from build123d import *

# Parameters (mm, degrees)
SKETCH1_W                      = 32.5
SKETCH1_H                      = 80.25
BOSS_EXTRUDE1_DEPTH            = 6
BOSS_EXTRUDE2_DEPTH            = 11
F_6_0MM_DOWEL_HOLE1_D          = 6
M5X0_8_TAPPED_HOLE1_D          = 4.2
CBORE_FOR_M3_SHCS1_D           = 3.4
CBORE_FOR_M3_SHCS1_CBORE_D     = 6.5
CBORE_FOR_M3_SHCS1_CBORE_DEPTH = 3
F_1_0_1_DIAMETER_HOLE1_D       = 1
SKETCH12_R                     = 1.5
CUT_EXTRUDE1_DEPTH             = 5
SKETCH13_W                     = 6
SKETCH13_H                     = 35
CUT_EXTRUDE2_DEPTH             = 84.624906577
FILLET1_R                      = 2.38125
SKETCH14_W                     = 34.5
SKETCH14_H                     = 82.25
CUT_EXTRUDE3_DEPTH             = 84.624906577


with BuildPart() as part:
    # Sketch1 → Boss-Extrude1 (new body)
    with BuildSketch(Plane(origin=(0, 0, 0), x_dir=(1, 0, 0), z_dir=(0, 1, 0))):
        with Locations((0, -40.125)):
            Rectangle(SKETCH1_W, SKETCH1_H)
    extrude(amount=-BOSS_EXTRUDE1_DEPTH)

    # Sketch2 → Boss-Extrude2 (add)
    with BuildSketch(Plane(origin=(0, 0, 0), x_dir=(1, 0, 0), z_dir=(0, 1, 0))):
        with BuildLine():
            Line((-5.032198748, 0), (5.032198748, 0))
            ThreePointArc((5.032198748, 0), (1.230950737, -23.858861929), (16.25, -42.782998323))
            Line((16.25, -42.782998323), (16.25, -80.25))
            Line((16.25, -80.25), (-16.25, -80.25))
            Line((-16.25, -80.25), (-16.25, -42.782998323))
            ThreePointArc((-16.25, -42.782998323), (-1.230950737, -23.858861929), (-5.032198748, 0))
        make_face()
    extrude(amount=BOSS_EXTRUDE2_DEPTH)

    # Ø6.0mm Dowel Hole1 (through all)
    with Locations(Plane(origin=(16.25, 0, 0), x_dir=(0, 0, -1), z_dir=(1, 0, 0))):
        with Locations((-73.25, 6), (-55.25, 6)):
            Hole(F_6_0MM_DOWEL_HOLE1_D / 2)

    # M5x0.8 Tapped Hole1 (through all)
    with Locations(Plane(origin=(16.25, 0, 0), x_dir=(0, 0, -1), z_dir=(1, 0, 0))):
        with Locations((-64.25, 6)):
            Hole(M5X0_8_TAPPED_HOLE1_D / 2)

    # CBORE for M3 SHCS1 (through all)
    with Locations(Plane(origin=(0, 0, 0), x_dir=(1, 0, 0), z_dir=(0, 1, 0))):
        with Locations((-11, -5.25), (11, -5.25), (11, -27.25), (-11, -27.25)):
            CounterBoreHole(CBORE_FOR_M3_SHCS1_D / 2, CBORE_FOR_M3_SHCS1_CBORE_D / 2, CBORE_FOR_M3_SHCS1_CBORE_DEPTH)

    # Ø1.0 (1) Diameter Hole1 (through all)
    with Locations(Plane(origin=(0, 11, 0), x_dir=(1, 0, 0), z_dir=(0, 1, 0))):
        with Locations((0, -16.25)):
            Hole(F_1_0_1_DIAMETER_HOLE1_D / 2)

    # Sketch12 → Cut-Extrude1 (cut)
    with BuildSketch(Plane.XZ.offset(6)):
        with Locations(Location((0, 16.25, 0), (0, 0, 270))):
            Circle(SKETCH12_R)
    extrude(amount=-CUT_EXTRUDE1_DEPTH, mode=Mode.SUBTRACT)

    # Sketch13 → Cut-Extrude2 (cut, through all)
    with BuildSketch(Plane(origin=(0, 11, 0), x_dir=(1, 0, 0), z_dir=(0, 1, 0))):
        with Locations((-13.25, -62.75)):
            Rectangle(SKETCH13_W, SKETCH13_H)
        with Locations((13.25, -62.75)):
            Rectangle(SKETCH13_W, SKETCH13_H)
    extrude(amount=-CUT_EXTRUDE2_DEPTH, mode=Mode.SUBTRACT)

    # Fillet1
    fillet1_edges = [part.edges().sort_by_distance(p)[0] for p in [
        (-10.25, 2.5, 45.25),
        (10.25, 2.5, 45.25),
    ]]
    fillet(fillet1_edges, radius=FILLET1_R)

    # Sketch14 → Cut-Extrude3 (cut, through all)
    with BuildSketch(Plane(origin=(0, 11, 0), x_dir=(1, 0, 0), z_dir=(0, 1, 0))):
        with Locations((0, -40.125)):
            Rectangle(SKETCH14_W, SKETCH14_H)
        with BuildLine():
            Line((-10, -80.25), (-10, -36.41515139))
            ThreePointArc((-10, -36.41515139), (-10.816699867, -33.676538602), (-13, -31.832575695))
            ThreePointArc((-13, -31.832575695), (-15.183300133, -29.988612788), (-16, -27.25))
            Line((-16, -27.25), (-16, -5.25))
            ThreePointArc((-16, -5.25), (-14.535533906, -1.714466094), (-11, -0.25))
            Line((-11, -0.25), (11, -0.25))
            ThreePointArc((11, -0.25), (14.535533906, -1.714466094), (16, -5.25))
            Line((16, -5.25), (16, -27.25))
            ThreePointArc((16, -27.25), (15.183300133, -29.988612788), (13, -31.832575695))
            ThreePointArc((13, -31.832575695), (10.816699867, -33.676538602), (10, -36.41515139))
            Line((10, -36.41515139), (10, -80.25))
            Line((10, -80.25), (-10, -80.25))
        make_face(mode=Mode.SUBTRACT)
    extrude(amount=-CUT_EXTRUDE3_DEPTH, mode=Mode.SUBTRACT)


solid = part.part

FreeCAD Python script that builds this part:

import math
import FreeCAD as App
import Part
import Sketcher
from FreeCAD import Vector


def edges_at(feature, points):
    """Names of the edges that pass closest to the given points."""
    edges = feature.Shape.Edges
    near = lambda p: min(range(len(edges)), key=lambda i: edges[i].distToShape(Part.Vertex(*p))[0])
    return sorted({f"Edge{near(p) + 1}" for p in points})

doc = App.newDocument("Part")
body = doc.addObject("PartDesign::Body", "Body")

# Sketch on XZ plane
sketch1 = body.newObject("Sketcher::SketchObject", "Sketch")
sketch1.AttachmentSupport = (doc.getObject("XZ_Plane"), [""])
sketch1.MapMode = "FlatFace"
sketch1.addGeometry([
    Part.LineSegment(Vector(-16, 0, 0), Vector(-16, 80, 0)),
    Part.LineSegment(Vector(-16, 80, 0), Vector(16, 80, 0)),
    Part.LineSegment(Vector(16, 80, 0), Vector(16, 0, 0)),
    Part.LineSegment(Vector(16, 0, 0), Vector(-16, 0, 0)),
], False)
sketch1.addConstraint([
    Sketcher.Constraint("Coincident", 0, 2, 1, 1),
    Sketcher.Constraint("Coincident", 1, 2, 2, 1),
    Sketcher.Constraint("Coincident", 2, 2, 3, 1),
    Sketcher.Constraint("Coincident", 3, 2, 0, 1),
    Sketcher.Constraint("Vertical", 0),
    Sketcher.Constraint("Horizontal", 1),
    Sketcher.Constraint("Vertical", 2),
    Sketcher.Constraint("Horizontal", 3),
    Sketcher.Constraint("Symmetric", 2, 2, 3, 2, -1, 1),
    Sketcher.Constraint("DistanceX", 1, 1, 1, 2, 32.5),
    Sketcher.Constraint("DistanceY", 0, 1, 0, 2, 80.25),
])
pad1 = body.newObject("PartDesign::Pad", "Pad")
pad1.Profile = sketch1
pad1.Length = 6

# Sketch on XZ plane
sketch2 = body.newObject("Sketcher::SketchObject", "Sketch001")
sketch2.AttachmentSupport = (doc.getObject("XZ_Plane"), [""])
sketch2.MapMode = "FlatFace"
sketch2.addGeometry([
    Part.LineSegment(Vector(5, 0, 0), Vector(-5, 0, 0)),  # 0
    Part.ArcOfCircle(Part.Circle(Vector(-30, 16, 0), Vector(0, 0, 1), 30), math.radians(-33), math.radians(62)),  # 1
    Part.LineSegment(Vector(-16, 43, 0), Vector(-16, 80, 0)),  # 2
    Part.LineSegment(Vector(-16, 80, 0), Vector(16, 80, 0)),  # 3
    Part.LineSegment(Vector(16, 80, 0), Vector(16, 43, 0)),  # 4
    Part.ArcOfCircle(Part.Circle(Vector(30, 16, 0), Vector(0, 0, 1), 30), math.radians(118), math.radians(213)),  # 5
], False)
sketch2.addConstraint([
    Sketcher.Constraint("Coincident", 0, 2, 1, 1),
    Sketcher.Constraint("Coincident", 1, 2, 2, 1),
    Sketcher.Constraint("Coincident", 2, 2, 3, 1),
    Sketcher.Constraint("Coincident", 3, 2, 4, 1),
    Sketcher.Constraint("Coincident", 4, 2, 5, 1),
    Sketcher.Constraint("Coincident", 5, 2, 0, 1),
    Sketcher.Constraint("Horizontal", 0),
    Sketcher.Constraint("Vertical", 2),
    Sketcher.Constraint("Horizontal", 3),
    Sketcher.Constraint("Vertical", 4),
    Sketcher.Constraint("Equal", 1, 5),
    Sketcher.Constraint("Symmetric", 0, 2, 5, 2, -1, 1),
    Sketcher.Constraint("Symmetric", 1, 2, 4, 2, -2),
    Sketcher.Constraint("Radius", 1, 30.0),
    Sketcher.Constraint("DistanceX", 3, 1, 3, 2, 32.5),
    Sketcher.Constraint("DistanceX", 1, 3, 1, 2, 14.0),
    Sketcher.Constraint("DistanceY", 1, 3, 2, 2, 64.0),
    Sketcher.Constraint("DistanceY", -1, 1, 1, 3, 16.25),
])
pad2 = body.newObject("PartDesign::Pad", "Pad001")
pad2.Profile = sketch2
pad2.Length = 11
pad2.Reversed = True

# Sketch on YZ plane
sketch3 = body.newObject("Sketcher::SketchObject", "Sketch002")
sketch3.AttachmentSupport = (doc.getObject("YZ_Plane"), [""])
sketch3.MapMode = "FlatFace"
sketch3.AttachmentOffset = App.Placement(Vector(0, 0, 16.25), App.Rotation())
sketch3.addGeometry([
    Part.Circle(Vector(6, 73.2, 0), Vector(0, 0, 1), 3),
    Part.Circle(Vector(6, 55.2, 0), Vector(0, 0, 1), 3),
], False)
sketch3.addConstraint([
    Sketcher.Constraint("Equal", 0, 1),
    Sketcher.Constraint("Vertical", 0, 3, 1, 3),
    Sketcher.Constraint("Diameter", 0, 6.0),
    Sketcher.Constraint("DistanceX", -1, 1, 0, 3, 6.0),
    Sketcher.Constraint("DistanceY", 1, 3, 0, 3, 18.0),
    Sketcher.Constraint("DistanceY", -1, 1, 0, 3, 73.25),
])
doc.recompute()
hole = body.newObject("PartDesign::Hole", "Hole")
hole.Profile = sketch3
hole.ThreadType = "None"
hole.Diameter = 6
hole.DepthType = "ThroughAll"

# Sketch on YZ plane
sketch4 = body.newObject("Sketcher::SketchObject", "Sketch003")
sketch4.AttachmentSupport = (doc.getObject("YZ_Plane"), [""])
sketch4.MapMode = "FlatFace"
sketch4.AttachmentOffset = App.Placement(Vector(0, 0, 16.25), App.Rotation())
sketch4.addGeometry(Part.Circle(Vector(6, 64.2, 0), Vector(0, 0, 1), 2.1), False)
sketch4.addConstraint([
    Sketcher.Constraint("Diameter", 0, 4.2),
    Sketcher.Constraint("DistanceX", -1, 1, 0, 3, 6.0),
    Sketcher.Constraint("DistanceY", -1, 1, 0, 3, 64.25),
])
doc.recompute()
hole2 = body.newObject("PartDesign::Hole", "Hole001")
hole2.Profile = sketch4
hole2.ThreadType = "None"
hole2.Diameter = 4.2
hole2.DepthType = "ThroughAll"

# Sketch on XZ plane
sketch5 = body.newObject("Sketcher::SketchObject", "Sketch004")
sketch5.AttachmentSupport = (doc.getObject("XZ_Plane"), [""])
sketch5.MapMode = "FlatFace"
sketch5.addGeometry([
    Part.Circle(Vector(-11, 5.2, 0), Vector(0, 0, 1), 1.7),
    Part.Circle(Vector(11, 5.2, 0), Vector(0, 0, 1), 1.7),
    Part.Circle(Vector(11, 27.2, 0), Vector(0, 0, 1), 1.7),
    Part.Circle(Vector(-11, 27.2, 0), Vector(0, 0, 1), 1.7),
], False)
sketch5.addConstraint([
    Sketcher.Constraint("Equal", 0, 1),
    Sketcher.Constraint("Equal", 1, 2),
    Sketcher.Constraint("Equal", 2, 3),
    Sketcher.Constraint("Symmetric", 0, 3, 1, 3, -2),
    Sketcher.Constraint("Symmetric", 2, 3, 3, 3, -2),
    Sketcher.Constraint("Vertical", 1, 3, 2, 3),
    Sketcher.Constraint("Diameter", 0, 3.4),
    Sketcher.Constraint("DistanceX", 0, 3, -1, 1, 11.0),
    Sketcher.Constraint("DistanceY", 1, 3, 2, 3, 22.0),
    Sketcher.Constraint("DistanceY", -1, 1, 0, 3, 5.25),
])
doc.recompute()
hole3 = body.newObject("PartDesign::Hole", "Hole002")
hole3.Profile = sketch5
hole3.ThreadType = "None"
hole3.Diameter = 3.4
hole3.DepthType = "ThroughAll"
hole3.HoleCutType = "Counterbore"
hole3.HoleCutDiameter = 6.5
hole3.HoleCutDepth = 3
hole3.Reversed = True

# Sketch on XZ plane
sketch6 = body.newObject("Sketcher::SketchObject", "Sketch005")
sketch6.AttachmentSupport = (doc.getObject("XZ_Plane"), [""])
sketch6.MapMode = "FlatFace"
sketch6.AttachmentOffset = App.Placement(Vector(0, 0, -11), App.Rotation())
sketch6.addGeometry(Part.Circle(Vector(0, 16.2, 0), Vector(0, 0, 1), 0.5), False)
sketch6.addConstraint([
    Sketcher.Constraint("PointOnObject", 0, 3, -2),
    Sketcher.Constraint("Diameter", 0, 1.0),
    Sketcher.Constraint("DistanceY", -1, 1, 0, 3, 16.25),
])
doc.recompute()
hole4 = body.newObject("PartDesign::Hole", "Hole003")
hole4.Profile = sketch6
hole4.ThreadType = "None"
hole4.Diameter = 1
hole4.DepthType = "ThroughAll"
hole4.Reversed = True

# Sketch on XZ plane
sketch7 = body.newObject("Sketcher::SketchObject", "Sketch006")
sketch7.AttachmentSupport = (doc.getObject("XZ_Plane"), [""])
sketch7.MapMode = "FlatFace"
sketch7.AttachmentOffset = App.Placement(Vector(0, 0, 6), App.Rotation())
sketch7.addGeometry(Part.Circle(Vector(0, 16.2, 0), Vector(0, 0, 1), 1.5), False)
sketch7.addConstraint([
    Sketcher.Constraint("PointOnObject", 0, 3, -2),
    Sketcher.Constraint("Diameter", 0, 3.0),
    Sketcher.Constraint("DistanceY", -1, 1, 0, 3, 16.25),
])
pocket1 = body.newObject("PartDesign::Pocket", "Pocket")
pocket1.Profile = sketch7
pocket1.Length = 5

# Sketch on XZ plane
sketch8 = body.newObject("Sketcher::SketchObject", "Sketch007")
sketch8.AttachmentSupport = (doc.getObject("XZ_Plane"), [""])
sketch8.MapMode = "FlatFace"
sketch8.AttachmentOffset = App.Placement(Vector(0, 0, -11), App.Rotation())
sketch8.addGeometry([
    Part.LineSegment(Vector(-16, 45, 0), Vector(-16, 80, 0)),  # 0
    Part.LineSegment(Vector(-16, 80, 0), Vector(-10, 80, 0)),  # 1
    Part.LineSegment(Vector(-10, 80, 0), Vector(-10, 45, 0)),  # 2
    Part.LineSegment(Vector(-10, 45, 0), Vector(-16, 45, 0)),  # 3
    Part.LineSegment(Vector(10, 45, 0), Vector(10, 80, 0)),  # 4
    Part.LineSegment(Vector(10, 80, 0), Vector(16, 80, 0)),  # 5
    Part.LineSegment(Vector(16, 80, 0), Vector(16, 45, 0)),  # 6
    Part.LineSegment(Vector(16, 45, 0), Vector(10, 45, 0)),  # 7
], False)
sketch8.addConstraint([
    Sketcher.Constraint("Coincident", 0, 2, 1, 1),
    Sketcher.Constraint("Coincident", 1, 2, 2, 1),
    Sketcher.Constraint("Coincident", 2, 2, 3, 1),
    Sketcher.Constraint("Coincident", 3, 2, 0, 1),
    Sketcher.Constraint("Coincident", 4, 2, 5, 1),
    Sketcher.Constraint("Coincident", 5, 2, 6, 1),
    Sketcher.Constraint("Coincident", 6, 2, 7, 1),
    Sketcher.Constraint("Coincident", 7, 2, 4, 1),
    Sketcher.Constraint("Vertical", 0),
    Sketcher.Constraint("Horizontal", 1),
    Sketcher.Constraint("Vertical", 2),
    Sketcher.Constraint("Horizontal", 3),
    Sketcher.Constraint("Vertical", 4),
    Sketcher.Constraint("Horizontal", 5),
    Sketcher.Constraint("Vertical", 6),
    Sketcher.Constraint("Horizontal", 7),
    Sketcher.Constraint("Symmetric", 1, 2, 4, 2, -2),
    Sketcher.Constraint("Symmetric", 3, 2, 6, 2, -2),
    Sketcher.Constraint("DistanceX", 1, 1, 1, 2, 6.0),
    Sketcher.Constraint("DistanceY", 0, 1, 0, 2, 35.0),
    Sketcher.Constraint("DistanceX", 1, 2, 4, 2, 20.5),
    Sketcher.Constraint("DistanceY", -1, 1, 0, 2, 80.25),
])
pocket2 = body.newObject("PartDesign::Pocket", "Pocket001")
pocket2.Profile = sketch8
pocket2.Type = "ThroughAll"
pocket2.Reversed = True
doc.recompute()

fillet = body.newObject("PartDesign::Fillet", "Fillet")
fillet.Base = (pocket2, edges_at(pocket2, [(-10.25, 2.5, 45.25), (10.25, 2.5, 45.25)]))
fillet.Radius = 2.38125

# Sketch on XZ plane
sketch9 = body.newObject("Sketcher::SketchObject", "Sketch008")
sketch9.AttachmentSupport = (doc.getObject("XZ_Plane"), [""])
sketch9.MapMode = "FlatFace"
sketch9.AttachmentOffset = App.Placement(Vector(0, 0, -11), App.Rotation())
sketch9.addGeometry([
    Part.LineSegment(Vector(-17.2, -1, 0), Vector(-17.2, 81.2, 0)),  # 0
    Part.LineSegment(Vector(-17.2, 81.2, 0), Vector(17.2, 81.2, 0)),  # 1
    Part.LineSegment(Vector(17.2, 81.2, 0), Vector(17.2, -1, 0)),  # 2
    Part.LineSegment(Vector(17.2, -1, 0), Vector(-17.2, -1, 0)),  # 3
    Part.LineSegment(Vector(10, 80.2, 0), Vector(-10, 80.2, 0)),  # 4
    Part.LineSegment(Vector(-10, 80.2, 0), Vector(-10, 36.4, 0)),  # 5
    Part.ArcOfCircle(Part.Circle(Vector(-15, 36.4, 0), Vector(0, 0, 1), 5), math.radians(-66), math.radians(0)),  # 6
    Part.ArcOfCircle(Part.Circle(Vector(-11, 27.3, 0), Vector(0, 0, 1), 5), math.radians(114), math.radians(180)),  # 7
    Part.LineSegment(Vector(-16, 27.2, 0), Vector(-16, 5.2, 0)),  # 8
    Part.ArcOfCircle(Part.Circle(Vector(-11, 5.2, 0), Vector(0, 0, 1), 5), math.radians(180), math.radians(270)),  # 9
    Part.LineSegment(Vector(-11, 0.2, 0), Vector(11, 0.2, 0)),  # 10
    Part.ArcOfCircle(Part.Circle(Vector(11, 5.2, 0), Vector(0, 0, 1), 5), math.radians(-90), math.radians(0)),  # 11
    Part.LineSegment(Vector(16, 5.2, 0), Vector(16, 27.2, 0)),  # 12
    Part.ArcOfCircle(Part.Circle(Vector(11, 27.3, 0), Vector(0, 0, 1), 5), math.radians(0), math.radians(66)),  # 13
    Part.ArcOfCircle(Part.Circle(Vector(15, 36.4, 0), Vector(0, 0, 1), 5), math.radians(180), math.radians(246)),  # 14
    Part.LineSegment(Vector(10, 36.4, 0), Vector(10, 80.2, 0)),  # 15
], False)
sketch9.addConstraint([
    Sketcher.Constraint("Coincident", 0, 2, 1, 1),
    Sketcher.Constraint("Coincident", 1, 2, 2, 1),
    Sketcher.Constraint("Coincident", 2, 2, 3, 1),
    Sketcher.Constraint("Coincident", 3, 2, 0, 1),
    Sketcher.Constraint("Coincident", 4, 2, 5, 1),
    Sketcher.Constraint("Tangent", 5, 2, 6, 2),
    Sketcher.Constraint("Tangent", 6, 1, 7, 1),
    Sketcher.Constraint("Tangent", 7, 2, 8, 1),
    Sketcher.Constraint("Tangent", 8, 2, 9, 1),
    Sketcher.Constraint("Tangent", 9, 2, 10, 1),
    Sketcher.Constraint("Tangent", 10, 2, 11, 1),
    Sketcher.Constraint("Tangent", 11, 2, 12, 1),
    Sketcher.Constraint("Tangent", 12, 2, 13, 1),
    Sketcher.Constraint("Tangent", 13, 2, 14, 2),
    Sketcher.Constraint("Tangent", 14, 1, 15, 1),
    Sketcher.Constraint("Coincident", 15, 2, 4, 1),
    Sketcher.Constraint("Vertical", 0),
    Sketcher.Constraint("Horizontal", 1),
    Sketcher.Constraint("Vertical", 2),
    Sketcher.Constraint("Horizontal", 3),
    Sketcher.Constraint("Horizontal", 4),
    Sketcher.Constraint("Vertical", 5),
    Sketcher.Constraint("Vertical", 8),
    Sketcher.Constraint("Horizontal", 10),
    Sketcher.Constraint("Vertical", 12),
    Sketcher.Constraint("Vertical", 15),
    Sketcher.Constraint("Equal", 6, 7),
    Sketcher.Constraint("Equal", 7, 9),
    Sketcher.Constraint("Equal", 9, 11),
    Sketcher.Constraint("Equal", 11, 13),
    Sketcher.Constraint("Equal", 13, 14),
    Sketcher.Constraint("Symmetric", 7, 3, 13, 3, -2),
    Sketcher.Constraint("Horizontal", 6, 3, 14, 3),
    Sketcher.Constraint("Equal", 10, 8),
    Sketcher.Constraint("Radius", 6, 5.0),
    Sketcher.Constraint("DistanceX", 4, 2, 4, 1, 20.0),
    Sketcher.Constraint("DistanceX", 10, 1, 10, 2, 22.0),
    Sketcher.Constraint("DistanceX", 1, 1, 1, 2, 34.5),
    Sketcher.Constraint("DistanceY", 2, 2, -1, 1, 1.0),
    Sketcher.Constraint("DistanceY", 7, 3, 0, 2, 54.0),
    Sketcher.Constraint("DistanceY", 4, 2, 0, 2, 1.0),
    Sketcher.Constraint("DistanceY", 0, 1, 0, 2, 82.25),
    Sketcher.Constraint("DistanceX", 0, 2, -1, 1, 17.25),
])
pocket3 = body.newObject("PartDesign::Pocket", "Pocket002")
pocket3.Profile = sketch9
pocket3.Type = "ThroughAll"
pocket3.Reversed = True

doc.recompute()
